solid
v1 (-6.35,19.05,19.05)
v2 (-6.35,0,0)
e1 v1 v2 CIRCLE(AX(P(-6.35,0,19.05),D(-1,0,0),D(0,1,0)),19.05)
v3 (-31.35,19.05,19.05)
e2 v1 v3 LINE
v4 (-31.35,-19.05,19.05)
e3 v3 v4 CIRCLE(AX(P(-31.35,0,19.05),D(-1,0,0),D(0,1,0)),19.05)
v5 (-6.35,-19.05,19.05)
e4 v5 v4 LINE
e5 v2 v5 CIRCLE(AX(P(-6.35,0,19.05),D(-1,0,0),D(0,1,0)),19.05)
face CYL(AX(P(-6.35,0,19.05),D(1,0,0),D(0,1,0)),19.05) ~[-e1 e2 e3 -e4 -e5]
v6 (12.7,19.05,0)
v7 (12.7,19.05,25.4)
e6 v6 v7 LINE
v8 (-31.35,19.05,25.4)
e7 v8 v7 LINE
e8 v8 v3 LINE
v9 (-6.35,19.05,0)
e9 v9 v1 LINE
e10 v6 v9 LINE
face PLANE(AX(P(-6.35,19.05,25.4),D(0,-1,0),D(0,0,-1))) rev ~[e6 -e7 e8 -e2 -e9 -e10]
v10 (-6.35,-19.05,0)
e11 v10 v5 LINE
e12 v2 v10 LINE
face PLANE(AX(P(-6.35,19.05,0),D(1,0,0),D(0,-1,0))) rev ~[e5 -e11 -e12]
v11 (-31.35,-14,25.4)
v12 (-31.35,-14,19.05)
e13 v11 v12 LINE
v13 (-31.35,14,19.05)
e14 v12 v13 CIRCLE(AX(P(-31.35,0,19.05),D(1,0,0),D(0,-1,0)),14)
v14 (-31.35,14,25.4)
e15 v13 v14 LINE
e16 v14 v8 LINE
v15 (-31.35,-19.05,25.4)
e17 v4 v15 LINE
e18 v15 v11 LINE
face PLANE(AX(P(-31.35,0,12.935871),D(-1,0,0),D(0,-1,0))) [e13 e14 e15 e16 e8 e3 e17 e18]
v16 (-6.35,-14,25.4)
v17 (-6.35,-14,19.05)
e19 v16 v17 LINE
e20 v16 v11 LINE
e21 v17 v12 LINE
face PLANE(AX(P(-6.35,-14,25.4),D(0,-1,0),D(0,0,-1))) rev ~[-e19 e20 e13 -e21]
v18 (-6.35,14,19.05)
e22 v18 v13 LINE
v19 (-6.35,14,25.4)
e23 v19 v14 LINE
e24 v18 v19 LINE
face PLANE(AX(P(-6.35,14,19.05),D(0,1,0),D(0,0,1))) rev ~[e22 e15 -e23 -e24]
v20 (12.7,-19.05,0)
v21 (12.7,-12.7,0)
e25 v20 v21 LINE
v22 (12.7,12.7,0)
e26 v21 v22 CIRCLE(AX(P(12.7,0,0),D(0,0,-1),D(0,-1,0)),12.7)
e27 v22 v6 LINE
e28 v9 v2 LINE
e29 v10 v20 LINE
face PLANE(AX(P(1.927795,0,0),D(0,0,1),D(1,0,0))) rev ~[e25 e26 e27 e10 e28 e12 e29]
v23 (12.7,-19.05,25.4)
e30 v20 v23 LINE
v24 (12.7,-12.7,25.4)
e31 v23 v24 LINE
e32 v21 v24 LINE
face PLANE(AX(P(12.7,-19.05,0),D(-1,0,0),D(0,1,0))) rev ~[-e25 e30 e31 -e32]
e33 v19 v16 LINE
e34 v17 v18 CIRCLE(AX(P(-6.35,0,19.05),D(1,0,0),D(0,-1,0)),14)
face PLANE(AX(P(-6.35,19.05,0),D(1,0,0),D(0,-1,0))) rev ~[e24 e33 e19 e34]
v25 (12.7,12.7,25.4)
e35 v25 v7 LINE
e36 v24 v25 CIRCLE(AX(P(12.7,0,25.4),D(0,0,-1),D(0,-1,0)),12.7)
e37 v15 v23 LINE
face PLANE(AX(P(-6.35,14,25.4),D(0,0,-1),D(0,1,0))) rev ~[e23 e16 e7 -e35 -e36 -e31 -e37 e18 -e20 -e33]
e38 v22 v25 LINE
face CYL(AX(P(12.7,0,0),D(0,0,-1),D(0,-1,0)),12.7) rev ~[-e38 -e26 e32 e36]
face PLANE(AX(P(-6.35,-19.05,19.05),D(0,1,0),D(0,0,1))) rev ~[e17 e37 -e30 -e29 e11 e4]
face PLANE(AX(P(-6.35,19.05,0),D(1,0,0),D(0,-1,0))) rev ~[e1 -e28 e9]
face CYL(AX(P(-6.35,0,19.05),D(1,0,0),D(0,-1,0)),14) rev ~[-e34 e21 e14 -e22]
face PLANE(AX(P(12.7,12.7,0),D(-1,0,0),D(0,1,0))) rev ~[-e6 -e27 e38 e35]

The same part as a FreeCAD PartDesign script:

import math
import FreeCAD as App
import Part
import Sketcher
from FreeCAD import Vector
Q = App.Units.Quantity

doc = App.newDocument("Part")
params = doc.addObject("Spreadsheet::Sheet", "Params")
for row, (alias, value) in enumerate([
    ("sketch1_radius", "0.5 in"),
    ("sketch1_height", "1.5 in"),
    ("sketch1_width", "0.75 in"),
    ("pad1_length", "1 in"),
    ("sketch2_radius", "0.75 in"),
    ("sketch2_height", "0.25 in"),
    ("pad2_length", "25 mm"),
], start=1):
    params.set(f"A{row}", alias)
    params.set(f"B{row}", "=" + value)
    params.setAlias(f"B{row}", alias)

body = doc.addObject("PartDesign::Body", "Body")

sketch1 = body.newObject("Sketcher::SketchObject", "Sketch")
sketch1.AttachmentSupport = (doc.getObject("XY_Plane"), [""])
sketch1.MapMode = "FlatFace"
sketch1.addGeometry([
    Part.LineSegment(Vector(13, 19, 0), Vector(-6, 19, 0)),
    Part.LineSegment(Vector(-6, 19, 0), Vector(-6, -19, 0)),
    Part.LineSegment(Vector(-6, -19, 0), Vector(13, -19, 0)),
    Part.LineSegment(Vector(13, -19, 0), Vector(13, -13, 0)),
    Part.ArcOfCircle(Part.Circle(Vector(13, 0, 0), Vector(0, 0, 1), 13), math.radians(90), math.radians(270)),
    Part.LineSegment(Vector(13, 13, 0), Vector(13, 19, 0)),
], False)
sketch1.addConstraint([
    Sketcher.Constraint("Coincident", 0, 2, 1, 1),
    Sketcher.Constraint("Coincident", 1, 2, 2, 1),
    Sketcher.Constraint("Coincident", 2, 2, 3, 1),
    Sketcher.Constraint("Coincident", 3, 2, 4, 2),
    Sketcher.Constraint("Coincident", 4, 1, 5, 1),
    Sketcher.Constraint("Coincident", 5, 2, 0, 1),
    Sketcher.Constraint("Horizontal", 0),
    Sketcher.Constraint("Vertical", 1),
    Sketcher.Constraint("Horizontal", 2),
    Sketcher.Constraint("Vertical", 3),
    Sketcher.Constraint("Vertical", 5),
    Sketcher.Constraint("Symmetric", 3, 2, 4, 1, -1),
    Sketcher.Constraint("Vertical", 4, 3, 2, 2),
    Sketcher.Constraint("Equal", 3, 5),
    Sketcher.Constraint("Radius", 4, Q("0.5 in")),
    Sketcher.Constraint("DistanceY", 1, 2, 1, 1, Q("1.5 in")),
    Sketcher.Constraint("DistanceX", 0, 2, 0, 1, Q("0.75 in")),
    Sketcher.Constraint("DistanceX", -1, 1, 4, 3, Q("0.5 in")),
])
sketch1.setExpression("Constraints[14]", "Params.sketch1_radius")
sketch1.setExpression("Constraints[15]", "Params.sketch1_height")
sketch1.setExpression("Constraints[16]", "Params.sketch1_width")
pad1 = body.newObject("PartDesign::Pad", "Pad")
pad1.Profile = sketch1
pad1.setExpression("Length", "Params.pad1_length")

sketch2 = body.newObject("Sketcher::SketchObject", "Sketch001")
sketch2.AttachmentSupport = (doc.getObject("YZ_Plane"), [""])
sketch2.MapMode = "FlatFace"
sketch2.AttachmentOffset = App.Placement(Vector(0, 0, -0.25 * 25.4), App.Rotation())
sketch2.addGeometry([
    Part.LineSegment(Vector(19, 25, 0), Vector(19, 19, 0)),
    Part.ArcOfCircle(Part.Circle(Vector(0, 19, 0), Vector(0, 0, 1), 19), math.radians(180), math.radians(360)),
    Part.LineSegment(Vector(-19, 19, 0), Vector(-19, 25, 0)),
    Part.LineSegment(Vector(-19, 25, 0), Vector(-14, 25, 0)),
    Part.LineSegment(Vector(-14, 25, 0), Vector(-14, 19, 0)),
    Part.ArcOfCircle(Part.Circle(Vector(0, 19, 0), Vector(0, 0, 1), 14), math.radians(180), math.radians(360)),
    Part.LineSegment(Vector(14, 19, 0), Vector(14, 25, 0)),
    Part.LineSegment(Vector(14, 25, 0), Vector(19, 25, 0)),
], False)
sketch2.addConstraint([
    Sketcher.Constraint("Tangent", 0, 2, 1, 2),
    Sketcher.Constraint("Tangent", 1, 1, 2, 1),
    Sketcher.Constraint("Coincident", 2, 2, 3, 1),
    Sketcher.Constraint("Coincident", 3, 2, 4, 1),
    Sketcher.Constraint("Tangent", 4, 2, 5, 1),
    Sketcher.Constraint("Tangent", 5, 2, 6, 1),
    Sketcher.Constraint("Coincident", 6, 2, 7, 1),
    Sketcher.Constraint("Coincident", 7, 2, 0, 1),
    Sketcher.Constraint("Vertical", 0),
    Sketcher.Constraint("Vertical", 2),
    Sketcher.Constraint("Horizontal", 3),
    Sketcher.Constraint("Vertical", 4),
    Sketcher.Constraint("Vertical", 6),
    Sketcher.Constraint("Horizontal", 7),
    Sketcher.Constraint("Coincident", 5, 3, 1, 3),
    Sketcher.Constraint("Symmetric", 3, 2, 6, 2, -2),
    Sketcher.Constraint("Radius", 1, Q("0.75 in")),
    Sketcher.Constraint("DistanceY", -1, 1, 2, 2, Q("1 in")),
    Sketcher.Constraint("DistanceY", 0, 2, 0, 1, Q("0.25 in")),
    Sketcher.Constraint("Radius", 5, Q("14 mm")),
])
sketch2.setExpression("Constraints[16]", "Params.sketch2_radius")
sketch2.setExpression("Constraints[18]", "Params.sketch2_height")
pad2 = body.newObject("PartDesign::Pad", "Pad001")
pad2.Profile = sketch2
pad2.setExpression("Length", "Params.pad2_length")
pad2.Reversed = True

doc.recompute()
